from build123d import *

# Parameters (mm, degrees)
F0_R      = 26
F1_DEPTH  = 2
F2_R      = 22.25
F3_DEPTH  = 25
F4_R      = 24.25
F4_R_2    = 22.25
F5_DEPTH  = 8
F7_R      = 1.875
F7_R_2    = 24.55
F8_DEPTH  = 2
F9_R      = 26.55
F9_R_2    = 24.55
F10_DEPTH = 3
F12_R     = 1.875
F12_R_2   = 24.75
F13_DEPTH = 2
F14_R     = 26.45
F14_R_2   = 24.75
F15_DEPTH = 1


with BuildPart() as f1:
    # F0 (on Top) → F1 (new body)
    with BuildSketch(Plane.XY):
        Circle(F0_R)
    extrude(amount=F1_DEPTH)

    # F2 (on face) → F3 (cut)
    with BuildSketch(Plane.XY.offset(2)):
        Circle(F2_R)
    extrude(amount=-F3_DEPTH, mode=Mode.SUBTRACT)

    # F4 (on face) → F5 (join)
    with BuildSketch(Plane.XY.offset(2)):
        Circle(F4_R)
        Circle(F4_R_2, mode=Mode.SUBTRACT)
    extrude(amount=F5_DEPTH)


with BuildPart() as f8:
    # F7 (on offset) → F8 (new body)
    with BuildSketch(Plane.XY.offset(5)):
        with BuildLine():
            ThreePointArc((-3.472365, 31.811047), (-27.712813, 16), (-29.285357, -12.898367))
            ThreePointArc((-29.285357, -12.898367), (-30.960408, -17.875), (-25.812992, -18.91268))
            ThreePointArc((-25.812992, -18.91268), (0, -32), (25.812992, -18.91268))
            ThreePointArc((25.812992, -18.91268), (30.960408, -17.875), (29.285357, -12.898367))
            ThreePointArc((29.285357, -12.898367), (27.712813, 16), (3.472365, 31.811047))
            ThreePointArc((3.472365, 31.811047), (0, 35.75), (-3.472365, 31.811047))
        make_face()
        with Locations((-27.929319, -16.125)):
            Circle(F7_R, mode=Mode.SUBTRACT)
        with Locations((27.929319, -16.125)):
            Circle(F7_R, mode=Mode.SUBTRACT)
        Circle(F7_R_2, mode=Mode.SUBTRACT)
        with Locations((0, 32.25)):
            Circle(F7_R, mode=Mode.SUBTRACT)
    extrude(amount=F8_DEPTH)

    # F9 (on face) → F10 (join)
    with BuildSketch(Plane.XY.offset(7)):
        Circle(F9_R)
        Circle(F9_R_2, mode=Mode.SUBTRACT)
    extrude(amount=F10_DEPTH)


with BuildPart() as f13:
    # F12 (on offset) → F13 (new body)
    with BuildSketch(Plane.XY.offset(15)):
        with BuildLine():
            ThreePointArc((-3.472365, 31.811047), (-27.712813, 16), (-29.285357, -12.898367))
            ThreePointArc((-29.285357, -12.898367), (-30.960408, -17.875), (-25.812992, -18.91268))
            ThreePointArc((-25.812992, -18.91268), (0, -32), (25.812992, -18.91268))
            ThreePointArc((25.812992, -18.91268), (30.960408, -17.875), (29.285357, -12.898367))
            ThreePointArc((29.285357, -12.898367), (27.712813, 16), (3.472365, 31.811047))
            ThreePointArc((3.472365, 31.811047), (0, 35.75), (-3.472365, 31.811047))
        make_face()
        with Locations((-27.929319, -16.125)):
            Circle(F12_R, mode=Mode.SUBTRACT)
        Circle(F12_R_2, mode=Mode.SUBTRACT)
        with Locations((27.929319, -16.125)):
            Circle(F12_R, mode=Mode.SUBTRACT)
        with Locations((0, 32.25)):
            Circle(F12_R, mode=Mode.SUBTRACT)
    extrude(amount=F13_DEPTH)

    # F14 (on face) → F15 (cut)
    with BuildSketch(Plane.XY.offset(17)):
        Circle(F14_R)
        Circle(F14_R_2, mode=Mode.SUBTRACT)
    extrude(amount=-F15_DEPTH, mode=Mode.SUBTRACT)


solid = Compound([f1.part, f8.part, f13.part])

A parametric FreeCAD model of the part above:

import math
import FreeCAD as App
import Part
import Sketcher

doc = App.newDocument("Part")
body = doc.addObject("PartDesign::Body", "Body")

# Sketch on XY plane
sketch1 = body.newObject("Sketcher::SketchObject", "Sketch")
sketch1.AttachmentSupport = (doc.getObject("XY_Plane"), [""])
sketch1.MapMode = "FlatFace"
sketch1.addGeometry(Part.Circle(App.Vector(0, 0, 0), App.Vector(0, 0, 1), 26), False)
sketch1.addConstraint([
    Sketcher.Constraint("Coincident", 0, 3, -1, 1),
    Sketcher.Constraint("Diameter", 0, 52.0),
])
pad1 = body.newObject("PartDesign::Pad", "Pad")
pad1.Profile = sketch1
pad1.Length = 2

# Sketch on XY plane
sketch2 = body.newObject("Sketcher::SketchObject", "Sketch001")
sketch2.AttachmentSupport = (doc.getObject("XY_Plane"), [""])
sketch2.MapMode = "FlatFace"
sketch2.AttachmentOffset = App.Placement(App.Vector(0, 0, 2), App.Rotation())
sketch2.addGeometry(Part.Circle(App.Vector(0, 0, 0), App.Vector(0, 0, 1), 22.25), False)
sketch2.addConstraint([
    Sketcher.Constraint("Coincident", 0, 3, -1, 1),
    Sketcher.Constraint("Diameter", 0, 44.5),
])
pocket1 = body.newObject("PartDesign::Pocket", "Pocket")
pocket1.Profile = sketch2
pocket1.Length = 25

# Sketch on XY plane
sketch3 = body.newObject("Sketcher::SketchObject", "Sketch002")
sketch3.AttachmentSupport = (doc.getObject("XY_Plane"), [""])
sketch3.MapMode = "FlatFace"
sketch3.AttachmentOffset = App.Placement(App.Vector(0, 0, 2), App.Rotation())
sketch3.addGeometry([
    Part.Circle(App.Vector(0, 0, 0), App.Vector(0, 0, 1), 24.25),
    Part.Circle(App.Vector(0, 0, 0), App.Vector(0, 0, 1), 22.25),
], False)
sketch3.addConstraint([
    Sketcher.Constraint("Coincident", 0, 3, -1, 1),
    Sketcher.Constraint("Coincident", 1, 3, -1, 1),
    Sketcher.Constraint("Diameter", 0, 48.5),
    Sketcher.Constraint("Diameter", 1, 44.5),
])
pad2 = body.newObject("PartDesign::Pad", "Pad001")
pad2.Profile = sketch3
pad2.Length = 8
body2 = doc.addObject("PartDesign::Body", "Body001")

# Sketch on XY plane
sketch4 = body2.newObject("Sketcher::SketchObject", "Sketch003")
sketch4.AttachmentSupport = (doc.getObject("XY_Plane001"), [""])
sketch4.MapMode = "FlatFace"
sketch4.AttachmentOffset = App.Placement(App.Vector(0, 0, 5), App.Rotation())
sketch4.addGeometry([
    Part.ArcOfCircle(Part.Circle(App.Vector(0.000001, 0, 0), App.Vector(0, 0, 1), 32.000001), math.radians(96.229513), math.radians(203.770488)),  # 0
    Part.ArcOfCircle(Part.Circle(App.Vector(-27.929319, -16.125, 0), App.Vector(0, 0, 1), 3.5), math.radians(112.795265), math.radians(307.204731)),  # 1
    Part.ArcOfCircle(Part.Circle(App.Vector(0, 0.000001, 0), App.Vector(0, 0, 1), 32.000001), math.radians(-143.770487), math.radians(-36.229513)),  # 2
    Part.ArcOfCircle(Part.Circle(App.Vector(27.929319, -16.125, 0), App.Vector(0, 0, 1), 3.5), math.radians(-127.204731), math.radians(67.204735)),  # 3
    Part.ArcOfCircle(Part.Circle(App.Vector(-0.000001, 0, 0), App.Vector(0, 0, 1), 32.000001), math.radians(-23.770488), math.radians(83.770487)),  # 4
    Part.ArcOfCircle(Part.Circle(App.Vector(0, 32.25, 0), App.Vector(0, 0, 1), 3.5), math.radians(-7.204734), math.radians(187.204734)),  # 5
    Part.Circle(App.Vector(-27.929319, -16.125, 0), App.Vector(0, 0, 1), 1.875),  # 6
    Part.Circle(App.Vector(0, 0, 0), App.Vector(0, 0, 1), 24.55),  # 7
    Part.Circle(App.Vector(27.929319, -16.125, 0), App.Vector(0, 0, 1), 1.875),  # 8
    Part.Circle(App.Vector(0, 32.25, 0), App.Vector(0, 0, 1), 1.875),  # 9
], False)
sketch4.addConstraint([
    Sketcher.Constraint("Coincident", 0, 2, 1, 1),
    Sketcher.Constraint("Coincident", 1, 2, 2, 1),
    Sketcher.Constraint("Coincident", 2, 2, 3, 1),
    Sketcher.Constraint("Coincident", 3, 2, 4, 1),
    Sketcher.Constraint("Coincident", 4, 2, 5, 1),
    Sketcher.Constraint("Coincident", 5, 2, 0, 1),
    Sketcher.Constraint("Coincident", 0, 3, -1, 1),
    Sketcher.Constraint("Coincident", 2, 3, -1, 1),
    Sketcher.Constraint("Coincident", 4, 3, -1, 1),
    Sketcher.Constraint("Coincident", 7, 3, -1, 1),
    Sketcher.Constraint("Coincident", 6, 3, 1, 3),
    Sketcher.Constraint("Coincident", 8, 3, 3, 3),
    Sketcher.Constraint("Coincident", 9, 3, 5, 3),
    Sketcher.Constraint("Equal", 0, 2),
    Sketcher.Constraint("Equal", 1, 3),
    Sketcher.Constraint("Equal", 2, 4),
    Sketcher.Constraint("Equal", 3, 5),
    Sketcher.Constraint("Equal", 6, 8),
    Sketcher.Constraint("Equal", 8, 9),
    Sketcher.Constraint("Symmetric", 1, 3, 3, 3, -2),
    Sketcher.Constraint("PointOnObject", 5, 3, -2),
    Sketcher.Constraint("Radius", 0, 32.000001),
    Sketcher.Constraint("Diameter", 7, 49.1),
    Sketcher.Constraint("Radius", 1, 3.5),
    Sketcher.Constraint("Diameter", 6, 3.75),
    Sketcher.Constraint("DistanceY", -1, 1, 5, 3, 32.25),
    Sketcher.Constraint("DistanceY", 1, 3, -1, 1, 16.125),
    Sketcher.Constraint("DistanceX", 1, 3, -1, 1, 27.929319),
])
pad3 = body2.newObject("PartDesign::Pad", "Pad002")
pad3.Profile = sketch4
pad3.Length = 2

# Sketch on XY plane
sketch5 = body2.newObject("Sketcher::SketchObject", "Sketch004")
sketch5.AttachmentSupport = (doc.getObject("XY_Plane001"), [""])
sketch5.MapMode = "FlatFace"
sketch5.AttachmentOffset = App.Placement(App.Vector(0, 0, 7), App.Rotation())
sketch5.addGeometry([
    Part.Circle(App.Vector(0, 0, 0), App.Vector(0, 0, 1), 26.55),
    Part.Circle(App.Vector(0, 0, 0), App.Vector(0, 0, 1), 24.55),
], False)
sketch5.addConstraint([
    Sketcher.Constraint("Coincident", 0, 3, -1, 1),
    Sketcher.Constraint("Coincident", 1, 3, -1, 1),
    Sketcher.Constraint("Diameter", 0, 53.1),
    Sketcher.Constraint("Diameter", 1, 49.1),
])
pad4 = body2.newObject("PartDesign::Pad", "Pad003")
pad4.Profile = sketch5
pad4.Length = 3
body3 = doc.addObject("PartDesign::Body", "Body002")

# Sketch on XY plane
sketch6 = body3.newObject("Sketcher::SketchObject", "Sketch005")
sketch6.AttachmentSupport = (doc.getObject("XY_Plane002"), [""])
sketch6.MapMode = "FlatFace"
sketch6.AttachmentOffset = App.Placement(App.Vector(0, 0, 15), App.Rotation())
sketch6.addGeometry([
    Part.ArcOfCircle(Part.Circle(App.Vector(0.000001, 0, 0), App.Vector(0, 0, 1), 32.000001), math.radians(96.229513), math.radians(203.770488)),  # 0
    Part.ArcOfCircle(Part.Circle(App.Vector(-27.929319, -16.125, 0), App.Vector(0, 0, 1), 3.5), math.radians(112.795265), math.radians(307.204731)),  # 1
    Part.ArcOfCircle(Part.Circle(App.Vector(0, 0.000001, 0), App.Vector(0, 0, 1), 32.000001), math.radians(-143.770487), math.radians(-36.229513)),  # 2
    Part.ArcOfCircle(Part.Circle(App.Vector(27.929319, -16.125, 0), App.Vector(0, 0, 1), 3.5), math.radians(-127.204731), math.radians(67.204735)),  # 3
    Part.ArcOfCircle(Part.Circle(App.Vector(-0.000001, 0, 0), App.Vector(0, 0, 1), 32.000001), math.radians(-23.770488), math.radians(83.770487)),  # 4
    Part.ArcOfCircle(Part.Circle(App.Vector(0, 32.25, 0), App.Vector(0, 0, 1), 3.5), math.radians(-7.204734), math.radians(187.204734)),  # 5
    Part.Circle(App.Vector(-27.929319, -16.125, 0), App.Vector(0, 0, 1), 1.875),  # 6
    Part.Circle(App.Vector(0, 0, 0), App.Vector(0, 0, 1), 24.75),  # 7
    Part.Circle(App.Vector(27.929319, -16.125, 0), App.Vector(0, 0, 1), 1.875),  # 8
    Part.Circle(App.Vector(0, 32.25, 0), App.Vector(0, 0, 1), 1.875),  # 9
], False)
sketch6.addConstraint([
    Sketcher.Constraint("Coincident", 0, 2, 1, 1),
    Sketcher.Constraint("Coincident", 1, 2, 2, 1),
    Sketcher.Constraint("Coincident", 2, 2, 3, 1),
    Sketcher.Constraint("Coincident", 3, 2, 4, 1),
    Sketcher.Constraint("Coincident", 4, 2, 5, 1),
    Sketcher.Constraint("Coincident", 5, 2, 0, 1),
    Sketcher.Constraint("Coincident", 0, 3, -1, 1),
    Sketcher.Constraint("Coincident", 2, 3, -1, 1),
    Sketcher.Constraint("Coincident", 4, 3, -1, 1),
    Sketcher.Constraint("Coincident", 7, 3, -1, 1),
    Sketcher.Constraint("Coincident", 6, 3, 1, 3),
    Sketcher.Constraint("Coincident", 8, 3, 3, 3),
    Sketcher.Constraint("Coincident", 9, 3, 5, 3),
    Sketcher.Constraint("Equal", 0, 2),
    Sketcher.Constraint("Equal", 1, 3),
    Sketcher.Constraint("Equal", 2, 4),
    Sketcher.Constraint("Equal", 3, 5),
    Sketcher.Constraint("Equal", 6, 8),
    Sketcher.Constraint("Equal", 8, 9),
    Sketcher.Constraint("Symmetric", 1, 3, 3, 3, -2),
    Sketcher.Constraint("PointOnObject", 5, 3, -2),
    Sketcher.Constraint("Radius", 0, 32.000001),
    Sketcher.Constraint("Diameter", 7, 49.5),
    Sketcher.Constraint("Radius", 1, 3.5),
    Sketcher.Constraint("Diameter", 6, 3.75),
    Sketcher.Constraint("DistanceY", -1, 1, 5, 3, 32.25),
    Sketcher.Constraint("DistanceY", 1, 3, -1, 1, 16.125),
    Sketcher.Constraint("DistanceX", 1, 3, -1, 1, 27.929319),
])
pad5 = body3.newObject("PartDesign::Pad", "Pad004")
pad5.Profile = sketch6
pad5.Length = 2

# Sketch on XY plane
sketch7 = body3.newObject("Sketcher::SketchObject", "Sketch006")
sketch7.AttachmentSupport = (doc.getObject("XY_Plane002"), [""])
sketch7.MapMode = "FlatFace"
sketch7.AttachmentOffset = App.Placement(App.Vector(0, 0, 17), App.Rotation())
sketch7.addGeometry([
    Part.Circle(App.Vector(0, 0, 0), App.Vector(0, 0, 1), 26.45),
    Part.Circle(App.Vector(0, 0, 0), App.Vector(0, 0, 1), 24.75),
], False)
sketch7.addConstraint([
    Sketcher.Constraint("Coincident", 0, 3, -1, 1),
    Sketcher.Constraint("Coincident", 1, 3, -1, 1),
    Sketcher.Constraint("Diameter", 0, 52.9),
    Sketcher.Constraint("Diameter", 1, 49.5),
])
pocket2 = body3.newObject("PartDesign::Pocket", "Pocket001")
pocket2.Profile = sketch7
pocket2.Length = 1

doc.recompute()
